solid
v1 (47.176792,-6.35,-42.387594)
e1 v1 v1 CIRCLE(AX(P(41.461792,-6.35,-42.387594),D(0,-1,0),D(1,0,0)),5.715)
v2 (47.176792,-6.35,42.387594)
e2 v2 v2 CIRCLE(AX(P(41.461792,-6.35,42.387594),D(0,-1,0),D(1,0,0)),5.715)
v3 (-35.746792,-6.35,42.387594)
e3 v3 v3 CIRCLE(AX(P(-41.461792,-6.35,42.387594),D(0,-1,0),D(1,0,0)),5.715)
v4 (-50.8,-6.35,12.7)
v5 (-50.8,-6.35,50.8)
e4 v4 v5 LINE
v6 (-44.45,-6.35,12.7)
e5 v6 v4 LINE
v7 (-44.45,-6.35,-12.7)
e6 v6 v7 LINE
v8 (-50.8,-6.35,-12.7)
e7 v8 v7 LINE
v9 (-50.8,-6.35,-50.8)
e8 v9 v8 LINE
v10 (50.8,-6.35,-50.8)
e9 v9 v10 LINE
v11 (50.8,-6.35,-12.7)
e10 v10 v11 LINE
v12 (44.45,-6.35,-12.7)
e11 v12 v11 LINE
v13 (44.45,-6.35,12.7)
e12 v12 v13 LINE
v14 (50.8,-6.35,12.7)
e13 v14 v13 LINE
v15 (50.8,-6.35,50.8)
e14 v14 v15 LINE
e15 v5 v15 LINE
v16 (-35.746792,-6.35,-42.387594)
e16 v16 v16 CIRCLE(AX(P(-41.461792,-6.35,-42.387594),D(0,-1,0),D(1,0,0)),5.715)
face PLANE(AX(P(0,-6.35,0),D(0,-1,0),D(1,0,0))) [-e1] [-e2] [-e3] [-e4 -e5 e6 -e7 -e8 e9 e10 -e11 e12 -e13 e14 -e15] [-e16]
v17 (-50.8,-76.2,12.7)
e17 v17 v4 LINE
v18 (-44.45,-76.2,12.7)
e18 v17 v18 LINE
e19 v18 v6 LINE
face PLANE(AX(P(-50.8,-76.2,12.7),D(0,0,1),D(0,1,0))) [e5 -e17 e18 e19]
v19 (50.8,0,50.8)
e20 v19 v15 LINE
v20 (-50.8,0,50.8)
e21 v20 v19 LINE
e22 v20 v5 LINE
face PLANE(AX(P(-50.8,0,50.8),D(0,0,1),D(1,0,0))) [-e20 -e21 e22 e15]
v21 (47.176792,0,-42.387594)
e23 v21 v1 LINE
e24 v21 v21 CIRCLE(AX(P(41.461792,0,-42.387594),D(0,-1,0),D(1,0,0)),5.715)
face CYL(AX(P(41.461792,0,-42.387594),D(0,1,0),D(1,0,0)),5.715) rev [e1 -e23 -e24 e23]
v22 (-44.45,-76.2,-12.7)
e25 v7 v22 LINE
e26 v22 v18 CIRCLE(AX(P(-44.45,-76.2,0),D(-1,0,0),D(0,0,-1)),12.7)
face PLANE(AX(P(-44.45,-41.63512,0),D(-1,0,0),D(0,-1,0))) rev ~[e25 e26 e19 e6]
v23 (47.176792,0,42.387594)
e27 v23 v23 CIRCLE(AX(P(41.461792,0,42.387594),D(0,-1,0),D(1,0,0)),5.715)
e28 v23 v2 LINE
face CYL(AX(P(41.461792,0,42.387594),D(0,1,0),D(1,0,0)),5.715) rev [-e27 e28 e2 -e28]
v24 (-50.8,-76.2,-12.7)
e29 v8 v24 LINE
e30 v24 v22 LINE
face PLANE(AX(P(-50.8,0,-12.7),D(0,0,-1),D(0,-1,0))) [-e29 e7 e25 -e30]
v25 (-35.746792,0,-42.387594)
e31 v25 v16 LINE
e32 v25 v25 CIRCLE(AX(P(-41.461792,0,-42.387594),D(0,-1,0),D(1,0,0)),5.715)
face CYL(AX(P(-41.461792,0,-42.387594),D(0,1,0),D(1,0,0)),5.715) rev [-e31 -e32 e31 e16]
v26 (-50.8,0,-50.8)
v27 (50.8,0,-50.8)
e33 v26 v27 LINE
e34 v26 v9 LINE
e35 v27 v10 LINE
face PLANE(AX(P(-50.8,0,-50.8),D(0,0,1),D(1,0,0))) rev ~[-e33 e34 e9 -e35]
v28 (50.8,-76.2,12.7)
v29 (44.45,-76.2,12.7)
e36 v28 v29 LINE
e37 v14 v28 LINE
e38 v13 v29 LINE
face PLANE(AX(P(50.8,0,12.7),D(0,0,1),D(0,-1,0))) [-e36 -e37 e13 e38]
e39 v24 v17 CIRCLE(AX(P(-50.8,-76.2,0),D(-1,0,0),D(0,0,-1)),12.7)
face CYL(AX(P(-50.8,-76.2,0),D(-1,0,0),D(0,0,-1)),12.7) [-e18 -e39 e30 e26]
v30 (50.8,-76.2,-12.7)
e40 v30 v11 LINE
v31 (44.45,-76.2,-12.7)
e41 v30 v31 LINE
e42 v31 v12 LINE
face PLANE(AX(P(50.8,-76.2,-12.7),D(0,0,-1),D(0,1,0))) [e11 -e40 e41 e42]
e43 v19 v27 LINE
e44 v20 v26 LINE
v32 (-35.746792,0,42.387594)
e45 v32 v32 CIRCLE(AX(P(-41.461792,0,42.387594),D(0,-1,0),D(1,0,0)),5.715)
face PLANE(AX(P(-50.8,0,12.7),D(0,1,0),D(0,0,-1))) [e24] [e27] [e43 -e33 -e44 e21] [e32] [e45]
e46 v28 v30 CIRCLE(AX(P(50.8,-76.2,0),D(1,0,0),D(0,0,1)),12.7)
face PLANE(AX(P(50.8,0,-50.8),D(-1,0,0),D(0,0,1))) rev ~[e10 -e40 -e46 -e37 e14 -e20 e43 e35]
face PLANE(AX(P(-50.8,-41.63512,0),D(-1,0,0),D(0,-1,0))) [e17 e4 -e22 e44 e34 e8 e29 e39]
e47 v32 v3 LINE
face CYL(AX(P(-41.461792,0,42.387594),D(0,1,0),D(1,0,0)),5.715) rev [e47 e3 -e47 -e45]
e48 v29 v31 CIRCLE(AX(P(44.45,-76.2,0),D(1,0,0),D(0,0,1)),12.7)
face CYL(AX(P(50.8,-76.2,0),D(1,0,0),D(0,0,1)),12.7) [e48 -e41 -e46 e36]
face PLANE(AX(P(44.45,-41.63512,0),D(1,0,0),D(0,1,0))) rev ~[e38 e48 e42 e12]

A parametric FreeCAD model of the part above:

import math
import FreeCAD as App
import Part
import Sketcher

V = App.Vector
Q = App.Units.Quantity


def add_polygon(sketch, points):
    """Adds a closed chain of lines whose ends are joined by coincident constraints."""
    first, n = sketch.GeometryCount, len(points)
    for a, b in zip(points, points[1:] + points[:1]):
        sketch.addGeometry(Part.LineSegment(App.Vector(*a, 0), App.Vector(*b, 0)), False)
    for i in range(n):
        sketch.addConstraint(Sketcher.Constraint("Coincident", first + i, 2, first + (i + 1) % n, 1))

doc = App.newDocument("Part")
body = doc.addObject("PartDesign::Body", "Body")

sketch1 = body.newObject("Sketcher::SketchObject", "Sketch")
sketch1.AttachmentSupport = (doc.getObject("XZ_Plane"), [""])
sketch1.MapMode = "FlatFace"
add_polygon(sketch1, [(-50.8, 50.8), (-50.8, -50.8), (50.8, -50.8), (50.8, 50.8)])
sketch1.addConstraint([
    Sketcher.Constraint("Vertical", 0),
    Sketcher.Constraint("Horizontal", 1),
    Sketcher.Constraint("Vertical", 2),
    Sketcher.Constraint("Horizontal", 3),
    Sketcher.Constraint("Symmetric", 0, 2, 2, 2, -1, 1),
    Sketcher.Constraint("Equal", 3, 0),
    Sketcher.Constraint("DistanceX", 1, 1, 1, 2, Q("4 in")),
])
pad1 = body.newObject("PartDesign::Pad", "Pad")
pad1.Profile = sketch1
pad1.Length = Q("0.25 in")

sketch2 = body.newObject("Sketcher::SketchObject", "Sketch001")
sketch2.AttachmentSupport = (doc.getObject("XZ_Plane"), [""])
sketch2.MapMode = "FlatFace"
sketch2.addGeometry([
    Part.Circle(V(-41.461792, 42.387594, 0), V(0, 0, 1), 5.715),
    Part.Circle(V(41.461792, 42.387594, 0), V(0, 0, 1), 5.715),
    Part.Circle(V(-41.461792, -42.387594, 0), V(0, 0, 1), 5.715),
    Part.Circle(V(41.461792, -42.387594, 0), V(0, 0, 1), 5.715),
], False)
sketch2.addConstraint([
    Sketcher.Constraint("Equal", 0, 1),
    Sketcher.Constraint("Equal", 1, 2),
    Sketcher.Constraint("Equal", 2, 3),
    Sketcher.Constraint("Symmetric", 1, 3, 2, 3, -1, 1),
    Sketcher.Constraint("Symmetric", 0, 3, 3, 3, -1, 1),
    Sketcher.Constraint("Symmetric", 0, 3, 1, 3, -2),
    Sketcher.Constraint("Diameter", 0, Q("0.45 in")),
    Sketcher.Constraint("DistanceX", 0, 3, -1, 1, 41.461792),
    Sketcher.Constraint("DistanceY", -1, 1, 0, 3, 42.387594),
])
pocket1 = body.newObject("PartDesign::Pocket", "Pocket")
pocket1.Profile = sketch2
pocket1.Length = Q("0.25 in")
pocket1.Reversed = True

sketch3 = body.newObject("Sketcher::SketchObject", "Sketch002")
sketch3.AttachmentSupport = (doc.getObject("YZ_Plane"), [""])
sketch3.MapMode = "FlatFace"
sketch3.AttachmentOffset = App.Placement(V(0, 0, 2 * 25.4), App.Rotation())
sketch3.addGeometry([
    Part.LineSegment(V(0, -12.7, 0), V(0, 12.7, 0)),
    Part.LineSegment(V(0, 12.7, 0), V(-76.2, 12.7, 0)),
    Part.ArcOfCircle(Part.Circle(V(-76.2, 0, 0), V(0, 0, 1), 12.7), math.radians(90), math.radians(270)),
    Part.LineSegment(V(-76.2, -12.7, 0), V(0, -12.7, 0)),
], False)
sketch3.addConstraint([
    Sketcher.Constraint("Coincident", 0, 2, 1, 1),
    Sketcher.Constraint("Tangent", 1, 2, 2, 1),
    Sketcher.Constraint("Tangent", 2, 2, 3, 1),
    Sketcher.Constraint("Coincident", 3, 2, 0, 1),
    Sketcher.Constraint("Vertical", 0),
    Sketcher.Constraint("Horizontal", 1),
    Sketcher.Constraint("Horizontal", 3),
    Sketcher.Constraint("Symmetric", 0, 2, 3, 2, -1, 1),
    Sketcher.Constraint("Radius", 2, Q("0.5 in")),
    Sketcher.Constraint("DistanceX", 1, 2, 1, 1, Q("3 in")),
])
pad2 = body.newObject("PartDesign::Pad", "Pad001")
pad2.Profile = sketch3
pad2.Length = Q("0.25 in")
pad2.Reversed = True

sketch4 = body.newObject("Sketcher::SketchObject", "Sketch003")
sketch4.AttachmentSupport = (doc.getObject("YZ_Plane"), [""])
sketch4.MapMode = "FlatFace"
sketch4.AttachmentOffset = App.Placement(V(0, 0, -2 * 25.4), App.Rotation())
sketch4.addGeometry([
    Part.LineSegment(V(-76.2, 12.7, 0), V(0, 12.7, 0)),
    Part.LineSegment(V(0, 12.7, 0), V(0, -12.7, 0)),
    Part.LineSegment(V(0, -12.7, 0), V(-76.2, -12.7, 0)),
    Part.ArcOfCircle(Part.Circle(V(-76.2, 0, 0), V(0, 0, 1), 12.7), math.radians(90), math.radians(270)),
], False)
sketch4.addConstraint([
    Sketcher.Constraint("Coincident", 0, 2, 1, 1),
    Sketcher.Constraint("Coincident", 1, 2, 2, 1),
    Sketcher.Constraint("Tangent", 2, 2, 3, 2),
    Sketcher.Constraint("Tangent", 3, 1, 0, 1),
    Sketcher.Constraint("Horizontal", 0),
    Sketcher.Constraint("Vertical", 1),
    Sketcher.Constraint("Horizontal", 2),
    Sketcher.Constraint("Symmetric", 0, 2, 1, 2, -1, 1),
    Sketcher.Constraint("Radius", 3, Q("0.5 in")),
    Sketcher.Constraint("DistanceX", 0, 1, 0, 2, Q("3 in")),
])
pad3 = body.newObject("PartDesign::Pad", "Pad002")
pad3.Profile = sketch4
pad3.Length = Q("0.25 in")

doc.recompute()
